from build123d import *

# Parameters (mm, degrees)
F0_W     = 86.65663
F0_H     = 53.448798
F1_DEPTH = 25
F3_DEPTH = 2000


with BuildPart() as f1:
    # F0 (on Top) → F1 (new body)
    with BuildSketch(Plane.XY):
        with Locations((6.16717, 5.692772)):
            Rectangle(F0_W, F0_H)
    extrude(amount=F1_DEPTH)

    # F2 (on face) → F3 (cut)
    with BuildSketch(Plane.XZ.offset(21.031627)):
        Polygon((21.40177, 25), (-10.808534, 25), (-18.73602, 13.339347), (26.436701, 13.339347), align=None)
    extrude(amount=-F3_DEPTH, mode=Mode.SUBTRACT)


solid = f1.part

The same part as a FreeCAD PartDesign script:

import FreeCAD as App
import Part
import Sketcher
from FreeCAD import Vector
Q = App.Units.Quantity


def add_polygon(sketch, points):
    """Adds a closed chain of lines whose ends are joined by coincident constraints."""
    first, n = sketch.GeometryCount, len(points)
    for a, b in zip(points, points[1:] + points[:1]):
        sketch.addGeometry(Part.LineSegment(App.Vector(*a, 0), App.Vector(*b, 0)), False)
    for i in range(n):
        sketch.addConstraint(Sketcher.Constraint("Coincident", first + i, 2, first + (i + 1) % n, 1))

doc = App.newDocument("Part")
body = doc.addObject("PartDesign::Body", "Body")

# Sketch on XY plane
sketch1 = body.newObject("Sketcher::SketchObject", "Sketch")
sketch1.AttachmentSupport = (doc.getObject("XY_Plane"), [""])
sketch1.MapMode = "FlatFace"
add_polygon(sketch1, [(-37, 32), (-37, -21), (49, -21), (49, 32)])  # lines 0-3
sketch1.addConstraint([
    Sketcher.Constraint("Vertical", 0),
    Sketcher.Constraint("Horizontal", 1),
    Sketcher.Constraint("Vertical", 2),
    Sketcher.Constraint("Horizontal", 3),
    Sketcher.Constraint("DistanceY", 0, 2, 0, 1, Q("53.448798 mm")),
    Sketcher.Constraint("DistanceX", 1, 1, 1, 2, Q("86.65663 mm")),
    Sketcher.Constraint("DistanceY", -1, 1, 2, 2, Q("32.417171 mm")),
    Sketcher.Constraint("DistanceX", 0, 2, -1, 1, Q("37.161145 mm")),
])
pad1 = body.newObject("PartDesign::Pad", "Pad")
pad1.Profile = sketch1
pad1.Length = 25

# Sketch on XZ plane
sketch2 = body.newObject("Sketcher::SketchObject", "Sketch001")
sketch2.AttachmentSupport = (doc.getObject("XZ_Plane"), [""])
sketch2.MapMode = "FlatFace"
sketch2.AttachmentOffset = App.Placement(Vector(0, 0, 21.031627), App.Rotation())
add_polygon(sketch2, [(21, 25), (-11, 25), (-19, 13), (26, 13)])  # lines 0-3
sketch2.addConstraint([
    Sketcher.Constraint("Horizontal", 0),
    Sketcher.Constraint("Horizontal", 2),
    Sketcher.Constraint("DistanceY", -1, 1, 0, 2, Q("25 mm")),
    Sketcher.Constraint("DistanceX", 2, 1, 2, 2, Q("45.172721 mm")),
    Sketcher.Constraint("DistanceX", -1, 1, 2, 2, Q("26.436701 mm")),
    Sketcher.Constraint("DistanceX", 0, 2, 0, 1, Q("32.210304 mm")),
    Sketcher.Constraint("DistanceX", -1, 1, 3, 2, Q("21.40177 mm")),
    Sketcher.Constraint("Distance", 1, Q("14.100208 mm")),
])
pocket1 = body.newObject("PartDesign::Pocket", "Pocket")
pocket1.Profile = sketch2
pocket1.Length = 2000

doc.recompute()
